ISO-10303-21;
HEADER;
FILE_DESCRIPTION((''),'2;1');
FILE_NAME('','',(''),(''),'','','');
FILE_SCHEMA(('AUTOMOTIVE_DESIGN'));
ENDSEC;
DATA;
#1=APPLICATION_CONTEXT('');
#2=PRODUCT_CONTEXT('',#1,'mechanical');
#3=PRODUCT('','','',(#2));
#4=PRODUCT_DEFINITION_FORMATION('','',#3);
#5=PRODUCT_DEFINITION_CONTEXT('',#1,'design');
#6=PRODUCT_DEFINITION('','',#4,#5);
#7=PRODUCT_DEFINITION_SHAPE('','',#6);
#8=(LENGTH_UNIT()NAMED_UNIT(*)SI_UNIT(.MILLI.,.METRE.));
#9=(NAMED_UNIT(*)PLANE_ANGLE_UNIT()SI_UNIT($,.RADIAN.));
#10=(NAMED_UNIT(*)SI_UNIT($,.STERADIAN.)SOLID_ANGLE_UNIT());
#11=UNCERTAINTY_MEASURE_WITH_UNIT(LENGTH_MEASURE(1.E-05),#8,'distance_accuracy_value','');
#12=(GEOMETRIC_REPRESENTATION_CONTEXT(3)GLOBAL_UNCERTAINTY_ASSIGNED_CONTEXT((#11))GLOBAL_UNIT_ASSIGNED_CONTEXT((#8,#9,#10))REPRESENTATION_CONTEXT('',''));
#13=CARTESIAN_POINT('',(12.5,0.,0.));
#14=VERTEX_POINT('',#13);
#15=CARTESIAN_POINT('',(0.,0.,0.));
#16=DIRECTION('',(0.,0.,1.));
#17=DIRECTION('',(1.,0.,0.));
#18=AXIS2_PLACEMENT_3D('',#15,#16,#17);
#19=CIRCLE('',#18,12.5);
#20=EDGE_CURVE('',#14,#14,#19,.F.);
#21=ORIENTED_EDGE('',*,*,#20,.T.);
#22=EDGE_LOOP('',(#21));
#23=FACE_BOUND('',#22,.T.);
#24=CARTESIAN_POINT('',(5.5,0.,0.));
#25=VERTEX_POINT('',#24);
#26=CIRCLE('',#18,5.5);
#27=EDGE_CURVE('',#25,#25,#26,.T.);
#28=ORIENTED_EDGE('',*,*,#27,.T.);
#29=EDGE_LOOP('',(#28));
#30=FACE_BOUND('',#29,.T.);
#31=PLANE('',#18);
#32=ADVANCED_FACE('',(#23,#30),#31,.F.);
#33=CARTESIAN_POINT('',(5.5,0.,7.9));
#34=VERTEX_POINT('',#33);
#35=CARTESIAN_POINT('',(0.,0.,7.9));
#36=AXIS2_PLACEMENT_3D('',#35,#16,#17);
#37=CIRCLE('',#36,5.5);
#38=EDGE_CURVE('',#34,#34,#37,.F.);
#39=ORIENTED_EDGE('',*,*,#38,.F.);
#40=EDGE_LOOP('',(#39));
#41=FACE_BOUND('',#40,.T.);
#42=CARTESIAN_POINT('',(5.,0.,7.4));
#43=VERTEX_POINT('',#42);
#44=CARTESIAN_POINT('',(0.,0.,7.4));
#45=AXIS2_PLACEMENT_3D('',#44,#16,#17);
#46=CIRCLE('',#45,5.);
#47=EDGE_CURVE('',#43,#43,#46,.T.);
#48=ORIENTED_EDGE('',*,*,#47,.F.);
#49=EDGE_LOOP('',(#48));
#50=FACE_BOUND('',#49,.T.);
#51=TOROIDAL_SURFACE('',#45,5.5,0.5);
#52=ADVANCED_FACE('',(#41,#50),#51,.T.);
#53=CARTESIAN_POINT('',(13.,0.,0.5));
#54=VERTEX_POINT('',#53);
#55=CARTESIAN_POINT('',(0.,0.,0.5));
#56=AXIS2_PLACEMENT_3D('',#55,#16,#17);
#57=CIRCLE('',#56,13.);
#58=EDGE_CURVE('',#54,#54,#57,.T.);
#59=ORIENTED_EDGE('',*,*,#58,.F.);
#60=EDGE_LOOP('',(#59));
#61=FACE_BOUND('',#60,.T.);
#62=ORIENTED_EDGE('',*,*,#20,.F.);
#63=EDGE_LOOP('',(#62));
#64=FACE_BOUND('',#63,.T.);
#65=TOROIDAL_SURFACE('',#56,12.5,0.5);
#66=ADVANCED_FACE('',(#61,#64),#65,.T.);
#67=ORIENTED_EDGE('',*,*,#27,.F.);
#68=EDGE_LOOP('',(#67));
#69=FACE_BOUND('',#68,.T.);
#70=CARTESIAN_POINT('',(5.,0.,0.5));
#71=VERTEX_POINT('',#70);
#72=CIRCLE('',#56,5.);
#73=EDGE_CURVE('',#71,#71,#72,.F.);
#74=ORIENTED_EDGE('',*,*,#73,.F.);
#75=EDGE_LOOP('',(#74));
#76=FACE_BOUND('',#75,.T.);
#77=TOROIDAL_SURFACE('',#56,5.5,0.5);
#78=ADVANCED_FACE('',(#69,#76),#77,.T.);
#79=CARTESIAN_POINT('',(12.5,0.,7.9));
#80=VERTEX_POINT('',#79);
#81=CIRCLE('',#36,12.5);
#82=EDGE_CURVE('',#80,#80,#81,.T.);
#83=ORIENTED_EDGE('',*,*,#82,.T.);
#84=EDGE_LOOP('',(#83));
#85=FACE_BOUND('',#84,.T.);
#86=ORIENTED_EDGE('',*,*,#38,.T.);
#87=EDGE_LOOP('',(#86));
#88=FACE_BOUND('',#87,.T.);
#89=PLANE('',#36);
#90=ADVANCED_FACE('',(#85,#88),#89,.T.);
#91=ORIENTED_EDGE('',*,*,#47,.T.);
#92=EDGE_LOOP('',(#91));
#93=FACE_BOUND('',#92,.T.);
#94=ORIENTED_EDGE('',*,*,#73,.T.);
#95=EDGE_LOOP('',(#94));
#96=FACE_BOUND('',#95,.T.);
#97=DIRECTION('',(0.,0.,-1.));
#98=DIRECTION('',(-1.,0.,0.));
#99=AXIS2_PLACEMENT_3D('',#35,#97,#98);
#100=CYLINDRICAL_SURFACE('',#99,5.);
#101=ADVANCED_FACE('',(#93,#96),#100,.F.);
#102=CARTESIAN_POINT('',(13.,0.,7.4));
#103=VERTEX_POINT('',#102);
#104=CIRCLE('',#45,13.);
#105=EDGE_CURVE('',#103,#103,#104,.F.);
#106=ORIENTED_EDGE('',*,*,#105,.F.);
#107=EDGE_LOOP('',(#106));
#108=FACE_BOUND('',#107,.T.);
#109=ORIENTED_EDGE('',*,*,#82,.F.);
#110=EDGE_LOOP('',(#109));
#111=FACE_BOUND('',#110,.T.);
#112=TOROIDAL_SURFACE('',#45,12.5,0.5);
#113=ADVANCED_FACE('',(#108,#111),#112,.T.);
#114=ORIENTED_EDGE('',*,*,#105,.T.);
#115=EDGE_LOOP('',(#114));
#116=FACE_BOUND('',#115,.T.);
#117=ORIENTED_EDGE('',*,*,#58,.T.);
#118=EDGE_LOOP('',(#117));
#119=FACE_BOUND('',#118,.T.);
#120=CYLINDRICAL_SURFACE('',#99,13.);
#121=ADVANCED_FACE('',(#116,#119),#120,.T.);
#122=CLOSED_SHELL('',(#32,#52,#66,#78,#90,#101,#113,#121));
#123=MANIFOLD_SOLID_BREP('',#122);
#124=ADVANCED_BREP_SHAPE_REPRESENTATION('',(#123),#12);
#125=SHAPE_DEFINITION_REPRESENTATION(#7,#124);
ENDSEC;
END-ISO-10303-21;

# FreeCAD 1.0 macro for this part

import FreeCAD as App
import Part
import Sketcher
Q = App.Units.Quantity


def edges_at(feature, points):
    """Names of the edges that pass closest to the given points."""
    edges = feature.Shape.Edges
    near = lambda p: min(range(len(edges)), key=lambda i: edges[i].distToShape(Part.Vertex(*p))[0])
    return sorted({f"Edge{near(p) + 1}" for p in points})

doc = App.newDocument("Part")
body = doc.addObject("PartDesign::Body", "Body")

sketch1 = body.newObject("Sketcher::SketchObject", "Sketch")
sketch1.AttachmentSupport = (doc.getObject("XY_Plane"), [""])
sketch1.MapMode = "FlatFace"
sketch1.addGeometry([
    Part.Circle(App.Vector(0, 0, 0), App.Vector(0, 0, 1), 13),
    Part.Circle(App.Vector(0, 0, 0), App.Vector(0, 0, 1), 5),
], False)
sketch1.addConstraint([
    Sketcher.Constraint("Coincident", 0, 3, -1, 1),
    Sketcher.Constraint("Coincident", 1, 3, -1, 1),
    Sketcher.Constraint("Diameter", 0, Q("26 mm")),
    Sketcher.Constraint("Diameter", 1, Q("10 mm")),
])
pad1 = body.newObject("PartDesign::Pad", "Pad")
pad1.Profile = sketch1
pad1.Length = 7.9
doc.recompute()

fillet = body.newObject("PartDesign::Fillet", "Fillet")
fillet.Base = (pad1, edges_at(pad1, [
    (-13, 0, 0),
    (-13, 0, 7.9),
    (-5, 0, 0),
    (-5, 0, 7.9),
]))
fillet.Radius = 0.5

doc.recompute()
